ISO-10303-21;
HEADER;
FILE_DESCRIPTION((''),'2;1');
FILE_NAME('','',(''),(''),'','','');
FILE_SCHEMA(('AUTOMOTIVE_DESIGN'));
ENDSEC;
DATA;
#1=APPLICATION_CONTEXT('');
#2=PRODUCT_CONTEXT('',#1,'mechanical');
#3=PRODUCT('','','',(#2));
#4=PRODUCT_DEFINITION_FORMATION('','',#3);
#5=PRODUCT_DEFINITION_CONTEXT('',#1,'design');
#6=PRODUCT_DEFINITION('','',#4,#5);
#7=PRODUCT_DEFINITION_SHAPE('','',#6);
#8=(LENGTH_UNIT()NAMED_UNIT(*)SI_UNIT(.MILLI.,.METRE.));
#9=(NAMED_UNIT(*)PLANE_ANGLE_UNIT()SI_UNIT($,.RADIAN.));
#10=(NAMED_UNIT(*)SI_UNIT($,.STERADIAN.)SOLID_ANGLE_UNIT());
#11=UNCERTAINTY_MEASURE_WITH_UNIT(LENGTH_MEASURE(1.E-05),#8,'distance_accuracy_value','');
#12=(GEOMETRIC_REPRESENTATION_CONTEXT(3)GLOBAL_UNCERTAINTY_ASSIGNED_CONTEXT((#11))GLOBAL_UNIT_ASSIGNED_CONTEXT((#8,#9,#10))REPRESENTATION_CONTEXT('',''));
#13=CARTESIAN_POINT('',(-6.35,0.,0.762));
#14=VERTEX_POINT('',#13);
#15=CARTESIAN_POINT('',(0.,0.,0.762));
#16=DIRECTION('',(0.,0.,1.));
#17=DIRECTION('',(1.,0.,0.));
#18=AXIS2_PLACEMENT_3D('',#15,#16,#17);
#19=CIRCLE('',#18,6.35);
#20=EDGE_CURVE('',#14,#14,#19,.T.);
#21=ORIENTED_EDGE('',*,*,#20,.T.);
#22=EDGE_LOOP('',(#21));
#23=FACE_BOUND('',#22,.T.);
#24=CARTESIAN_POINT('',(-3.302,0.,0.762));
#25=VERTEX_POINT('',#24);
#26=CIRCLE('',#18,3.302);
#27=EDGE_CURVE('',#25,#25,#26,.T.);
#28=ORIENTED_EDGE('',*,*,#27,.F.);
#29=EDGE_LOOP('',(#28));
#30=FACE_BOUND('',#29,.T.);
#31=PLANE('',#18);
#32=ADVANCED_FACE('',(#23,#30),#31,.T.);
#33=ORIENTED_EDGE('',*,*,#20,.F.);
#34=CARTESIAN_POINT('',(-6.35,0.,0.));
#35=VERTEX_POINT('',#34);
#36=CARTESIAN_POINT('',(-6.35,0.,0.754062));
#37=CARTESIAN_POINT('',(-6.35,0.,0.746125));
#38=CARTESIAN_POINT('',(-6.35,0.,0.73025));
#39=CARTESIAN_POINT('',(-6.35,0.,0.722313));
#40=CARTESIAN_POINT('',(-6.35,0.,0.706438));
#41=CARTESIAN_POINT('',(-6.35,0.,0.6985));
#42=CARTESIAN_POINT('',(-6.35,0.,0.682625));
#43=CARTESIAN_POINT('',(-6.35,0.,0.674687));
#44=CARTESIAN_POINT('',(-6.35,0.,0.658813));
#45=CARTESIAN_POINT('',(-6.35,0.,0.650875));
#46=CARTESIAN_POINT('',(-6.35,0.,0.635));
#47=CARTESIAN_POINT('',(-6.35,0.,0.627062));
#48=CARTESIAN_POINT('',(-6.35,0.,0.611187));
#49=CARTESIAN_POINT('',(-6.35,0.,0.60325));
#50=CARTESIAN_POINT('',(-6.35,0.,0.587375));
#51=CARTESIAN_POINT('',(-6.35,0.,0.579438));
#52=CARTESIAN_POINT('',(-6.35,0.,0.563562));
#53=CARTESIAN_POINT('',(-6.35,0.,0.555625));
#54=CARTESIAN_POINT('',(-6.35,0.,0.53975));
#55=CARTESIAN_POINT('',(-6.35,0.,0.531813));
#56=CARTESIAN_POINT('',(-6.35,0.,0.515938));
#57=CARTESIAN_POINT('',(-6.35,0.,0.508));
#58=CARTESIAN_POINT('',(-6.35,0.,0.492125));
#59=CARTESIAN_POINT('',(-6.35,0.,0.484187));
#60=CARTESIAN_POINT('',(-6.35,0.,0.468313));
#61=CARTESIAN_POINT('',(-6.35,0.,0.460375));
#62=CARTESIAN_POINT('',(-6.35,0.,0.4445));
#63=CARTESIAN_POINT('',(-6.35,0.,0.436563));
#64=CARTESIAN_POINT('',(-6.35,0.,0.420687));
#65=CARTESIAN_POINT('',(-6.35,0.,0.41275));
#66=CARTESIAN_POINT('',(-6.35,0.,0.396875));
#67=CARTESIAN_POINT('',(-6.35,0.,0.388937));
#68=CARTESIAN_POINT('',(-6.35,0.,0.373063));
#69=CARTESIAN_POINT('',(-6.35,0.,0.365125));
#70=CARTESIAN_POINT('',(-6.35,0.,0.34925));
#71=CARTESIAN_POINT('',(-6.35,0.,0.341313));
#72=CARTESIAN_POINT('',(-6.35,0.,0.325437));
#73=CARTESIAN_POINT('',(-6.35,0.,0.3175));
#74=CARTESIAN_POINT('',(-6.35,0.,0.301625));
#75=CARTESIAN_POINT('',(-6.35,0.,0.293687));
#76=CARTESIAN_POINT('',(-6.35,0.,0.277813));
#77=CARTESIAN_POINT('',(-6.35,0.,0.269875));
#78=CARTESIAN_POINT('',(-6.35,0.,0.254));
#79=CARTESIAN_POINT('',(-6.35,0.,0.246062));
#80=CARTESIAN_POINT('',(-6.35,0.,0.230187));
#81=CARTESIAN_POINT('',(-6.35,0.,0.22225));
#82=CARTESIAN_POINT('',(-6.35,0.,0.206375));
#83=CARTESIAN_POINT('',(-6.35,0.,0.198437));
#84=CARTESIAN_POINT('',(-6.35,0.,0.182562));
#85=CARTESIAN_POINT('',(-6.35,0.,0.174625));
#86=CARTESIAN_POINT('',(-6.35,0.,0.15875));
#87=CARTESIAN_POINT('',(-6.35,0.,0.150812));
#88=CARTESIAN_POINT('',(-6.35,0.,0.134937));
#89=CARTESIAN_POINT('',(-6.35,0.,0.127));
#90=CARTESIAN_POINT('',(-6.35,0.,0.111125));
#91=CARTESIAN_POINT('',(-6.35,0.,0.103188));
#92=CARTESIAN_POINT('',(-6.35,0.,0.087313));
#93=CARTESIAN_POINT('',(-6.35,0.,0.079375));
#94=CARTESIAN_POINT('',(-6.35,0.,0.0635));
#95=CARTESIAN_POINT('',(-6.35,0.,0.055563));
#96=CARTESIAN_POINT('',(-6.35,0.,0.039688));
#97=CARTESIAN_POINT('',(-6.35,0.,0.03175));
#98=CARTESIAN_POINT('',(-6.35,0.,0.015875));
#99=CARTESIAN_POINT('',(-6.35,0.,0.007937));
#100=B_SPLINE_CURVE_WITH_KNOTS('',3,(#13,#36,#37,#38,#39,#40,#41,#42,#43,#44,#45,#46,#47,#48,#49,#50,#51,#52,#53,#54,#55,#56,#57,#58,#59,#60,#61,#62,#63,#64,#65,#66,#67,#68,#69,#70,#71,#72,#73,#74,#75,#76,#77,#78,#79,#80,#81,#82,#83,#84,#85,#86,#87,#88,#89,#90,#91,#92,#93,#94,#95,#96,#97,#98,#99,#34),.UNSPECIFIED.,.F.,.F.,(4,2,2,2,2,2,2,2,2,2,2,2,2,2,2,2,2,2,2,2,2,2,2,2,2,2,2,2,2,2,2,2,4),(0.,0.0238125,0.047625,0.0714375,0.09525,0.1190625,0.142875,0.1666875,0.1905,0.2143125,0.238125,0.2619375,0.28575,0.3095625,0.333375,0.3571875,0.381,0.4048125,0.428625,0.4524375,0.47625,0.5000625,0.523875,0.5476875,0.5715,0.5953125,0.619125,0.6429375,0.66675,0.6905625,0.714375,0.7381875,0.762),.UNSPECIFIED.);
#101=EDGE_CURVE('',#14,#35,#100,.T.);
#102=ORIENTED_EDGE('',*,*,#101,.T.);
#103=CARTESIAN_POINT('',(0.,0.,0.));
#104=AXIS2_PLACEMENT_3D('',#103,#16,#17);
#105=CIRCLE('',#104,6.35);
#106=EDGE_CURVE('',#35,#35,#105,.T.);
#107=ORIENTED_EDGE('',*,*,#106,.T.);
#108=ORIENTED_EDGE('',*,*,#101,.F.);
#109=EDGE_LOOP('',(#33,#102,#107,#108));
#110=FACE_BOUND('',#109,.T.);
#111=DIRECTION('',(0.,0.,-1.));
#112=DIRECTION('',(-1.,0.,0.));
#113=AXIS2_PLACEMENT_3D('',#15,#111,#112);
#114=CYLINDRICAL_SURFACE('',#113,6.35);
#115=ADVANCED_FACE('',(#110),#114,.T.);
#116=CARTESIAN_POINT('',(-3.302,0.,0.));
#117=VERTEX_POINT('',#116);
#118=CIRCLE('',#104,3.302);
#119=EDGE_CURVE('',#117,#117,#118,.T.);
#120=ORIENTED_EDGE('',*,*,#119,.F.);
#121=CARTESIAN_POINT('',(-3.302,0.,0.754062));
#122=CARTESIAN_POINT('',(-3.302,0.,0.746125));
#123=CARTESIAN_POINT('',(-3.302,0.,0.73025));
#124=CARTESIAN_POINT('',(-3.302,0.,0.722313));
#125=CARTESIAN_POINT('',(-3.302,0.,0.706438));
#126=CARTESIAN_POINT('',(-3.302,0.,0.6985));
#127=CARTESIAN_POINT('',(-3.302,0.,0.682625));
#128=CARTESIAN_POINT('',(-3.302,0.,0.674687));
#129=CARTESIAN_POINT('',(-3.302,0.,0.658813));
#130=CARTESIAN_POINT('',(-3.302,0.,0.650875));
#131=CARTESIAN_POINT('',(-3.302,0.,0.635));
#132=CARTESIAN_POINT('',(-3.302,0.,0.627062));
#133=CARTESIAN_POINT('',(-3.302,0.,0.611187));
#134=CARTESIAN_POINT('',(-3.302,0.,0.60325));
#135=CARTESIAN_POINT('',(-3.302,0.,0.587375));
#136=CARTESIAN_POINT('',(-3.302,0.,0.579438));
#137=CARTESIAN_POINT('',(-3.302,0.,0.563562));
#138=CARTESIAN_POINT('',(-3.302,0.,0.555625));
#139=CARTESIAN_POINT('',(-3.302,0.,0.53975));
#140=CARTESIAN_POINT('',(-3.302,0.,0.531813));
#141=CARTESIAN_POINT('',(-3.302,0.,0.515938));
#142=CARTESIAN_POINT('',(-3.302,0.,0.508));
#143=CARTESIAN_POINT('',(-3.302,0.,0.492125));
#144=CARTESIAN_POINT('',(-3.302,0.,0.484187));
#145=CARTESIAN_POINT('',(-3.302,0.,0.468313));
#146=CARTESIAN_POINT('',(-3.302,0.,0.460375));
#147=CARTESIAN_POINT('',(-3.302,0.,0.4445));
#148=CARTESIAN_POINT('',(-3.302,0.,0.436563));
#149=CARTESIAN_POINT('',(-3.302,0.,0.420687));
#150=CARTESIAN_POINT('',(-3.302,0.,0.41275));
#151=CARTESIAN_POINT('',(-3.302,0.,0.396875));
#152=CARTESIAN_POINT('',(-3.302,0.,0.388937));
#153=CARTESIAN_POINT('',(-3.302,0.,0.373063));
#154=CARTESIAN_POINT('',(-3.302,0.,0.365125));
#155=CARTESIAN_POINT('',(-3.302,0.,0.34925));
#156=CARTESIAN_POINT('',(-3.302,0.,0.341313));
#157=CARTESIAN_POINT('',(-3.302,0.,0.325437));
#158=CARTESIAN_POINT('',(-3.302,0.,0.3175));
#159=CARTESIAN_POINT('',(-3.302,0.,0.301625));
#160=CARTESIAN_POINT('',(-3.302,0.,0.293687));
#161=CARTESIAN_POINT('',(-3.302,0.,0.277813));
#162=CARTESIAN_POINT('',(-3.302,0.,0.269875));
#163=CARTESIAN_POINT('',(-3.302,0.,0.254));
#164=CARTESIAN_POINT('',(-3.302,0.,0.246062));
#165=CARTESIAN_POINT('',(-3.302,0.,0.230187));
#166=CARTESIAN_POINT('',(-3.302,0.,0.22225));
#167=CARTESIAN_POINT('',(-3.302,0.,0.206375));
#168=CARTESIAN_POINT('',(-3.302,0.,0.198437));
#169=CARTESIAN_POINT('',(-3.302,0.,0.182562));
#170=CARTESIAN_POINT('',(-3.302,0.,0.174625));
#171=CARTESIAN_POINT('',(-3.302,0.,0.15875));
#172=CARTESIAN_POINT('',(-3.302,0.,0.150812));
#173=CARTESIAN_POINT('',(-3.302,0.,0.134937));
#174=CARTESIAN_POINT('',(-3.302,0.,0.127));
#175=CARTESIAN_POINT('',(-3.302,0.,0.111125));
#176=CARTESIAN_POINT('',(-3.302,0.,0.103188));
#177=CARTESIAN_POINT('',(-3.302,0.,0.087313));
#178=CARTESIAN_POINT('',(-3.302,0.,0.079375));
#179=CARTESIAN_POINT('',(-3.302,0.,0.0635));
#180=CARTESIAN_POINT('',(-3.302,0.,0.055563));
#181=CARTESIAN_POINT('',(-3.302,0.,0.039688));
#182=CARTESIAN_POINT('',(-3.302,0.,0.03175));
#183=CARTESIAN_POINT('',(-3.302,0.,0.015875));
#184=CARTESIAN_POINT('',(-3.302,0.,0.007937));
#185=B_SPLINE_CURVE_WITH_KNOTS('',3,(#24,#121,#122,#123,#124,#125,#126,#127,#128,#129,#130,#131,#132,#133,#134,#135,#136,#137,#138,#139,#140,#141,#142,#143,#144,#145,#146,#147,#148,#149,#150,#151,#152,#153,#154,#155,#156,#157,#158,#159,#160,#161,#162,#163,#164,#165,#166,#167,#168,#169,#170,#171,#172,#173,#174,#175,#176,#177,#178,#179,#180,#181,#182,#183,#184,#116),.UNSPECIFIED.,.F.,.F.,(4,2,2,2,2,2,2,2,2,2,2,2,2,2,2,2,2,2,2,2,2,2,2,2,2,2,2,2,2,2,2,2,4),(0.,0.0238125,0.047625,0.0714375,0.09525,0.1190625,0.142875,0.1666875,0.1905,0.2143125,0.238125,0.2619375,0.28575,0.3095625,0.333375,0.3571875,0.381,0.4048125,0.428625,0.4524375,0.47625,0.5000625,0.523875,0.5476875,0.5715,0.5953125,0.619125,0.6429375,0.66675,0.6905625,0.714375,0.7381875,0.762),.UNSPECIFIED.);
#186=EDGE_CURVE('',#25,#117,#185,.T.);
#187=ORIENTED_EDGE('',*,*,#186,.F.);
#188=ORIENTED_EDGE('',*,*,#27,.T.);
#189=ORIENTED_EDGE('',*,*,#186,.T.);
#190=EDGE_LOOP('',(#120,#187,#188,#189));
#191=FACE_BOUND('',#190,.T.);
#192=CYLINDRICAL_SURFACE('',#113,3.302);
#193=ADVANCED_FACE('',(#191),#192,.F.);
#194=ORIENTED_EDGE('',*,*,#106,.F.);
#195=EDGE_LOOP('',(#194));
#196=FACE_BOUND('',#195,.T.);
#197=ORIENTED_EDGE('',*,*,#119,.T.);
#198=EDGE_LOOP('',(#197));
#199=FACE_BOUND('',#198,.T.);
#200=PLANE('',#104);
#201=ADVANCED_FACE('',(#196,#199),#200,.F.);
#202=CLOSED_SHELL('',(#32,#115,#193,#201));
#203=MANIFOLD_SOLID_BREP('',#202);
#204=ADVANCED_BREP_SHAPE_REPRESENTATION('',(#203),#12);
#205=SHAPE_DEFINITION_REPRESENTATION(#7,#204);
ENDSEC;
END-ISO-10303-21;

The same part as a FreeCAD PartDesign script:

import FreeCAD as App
import Part
import Sketcher
from FreeCAD import Vector
Q = App.Units.Quantity

doc = App.newDocument("Part")
body = doc.addObject("PartDesign::Body", "Body")

sketch1 = body.newObject("Sketcher::SketchObject", "Sketch")
sketch1.AttachmentSupport = (doc.getObject("XY_Plane"), [""])
sketch1.MapMode = "FlatFace"
sketch1.addGeometry(Part.Circle(Vector(0, 0, 0), Vector(0, 0, 1), 6.35), False)
sketch1.addGeometry(Part.Circle(Vector(0, 0, 0), Vector(0, 0, 1), 3.302), False)
sketch1.addConstraint(Sketcher.Constraint("Coincident", 0, 3, -1, 1))
sketch1.addConstraint(Sketcher.Constraint("Coincident", 1, 3, -1, 1))
sketch1.addConstraint(Sketcher.Constraint("Diameter", 0, Q("0.5 in")))
sketch1.addConstraint(Sketcher.Constraint("Diameter", 1, Q("0.26 in")))
pad1 = body.newObject("PartDesign::Pad", "Pad")
pad1.Profile = sketch1
pad1.Length = Q("0.03 in")

doc.recompute()
